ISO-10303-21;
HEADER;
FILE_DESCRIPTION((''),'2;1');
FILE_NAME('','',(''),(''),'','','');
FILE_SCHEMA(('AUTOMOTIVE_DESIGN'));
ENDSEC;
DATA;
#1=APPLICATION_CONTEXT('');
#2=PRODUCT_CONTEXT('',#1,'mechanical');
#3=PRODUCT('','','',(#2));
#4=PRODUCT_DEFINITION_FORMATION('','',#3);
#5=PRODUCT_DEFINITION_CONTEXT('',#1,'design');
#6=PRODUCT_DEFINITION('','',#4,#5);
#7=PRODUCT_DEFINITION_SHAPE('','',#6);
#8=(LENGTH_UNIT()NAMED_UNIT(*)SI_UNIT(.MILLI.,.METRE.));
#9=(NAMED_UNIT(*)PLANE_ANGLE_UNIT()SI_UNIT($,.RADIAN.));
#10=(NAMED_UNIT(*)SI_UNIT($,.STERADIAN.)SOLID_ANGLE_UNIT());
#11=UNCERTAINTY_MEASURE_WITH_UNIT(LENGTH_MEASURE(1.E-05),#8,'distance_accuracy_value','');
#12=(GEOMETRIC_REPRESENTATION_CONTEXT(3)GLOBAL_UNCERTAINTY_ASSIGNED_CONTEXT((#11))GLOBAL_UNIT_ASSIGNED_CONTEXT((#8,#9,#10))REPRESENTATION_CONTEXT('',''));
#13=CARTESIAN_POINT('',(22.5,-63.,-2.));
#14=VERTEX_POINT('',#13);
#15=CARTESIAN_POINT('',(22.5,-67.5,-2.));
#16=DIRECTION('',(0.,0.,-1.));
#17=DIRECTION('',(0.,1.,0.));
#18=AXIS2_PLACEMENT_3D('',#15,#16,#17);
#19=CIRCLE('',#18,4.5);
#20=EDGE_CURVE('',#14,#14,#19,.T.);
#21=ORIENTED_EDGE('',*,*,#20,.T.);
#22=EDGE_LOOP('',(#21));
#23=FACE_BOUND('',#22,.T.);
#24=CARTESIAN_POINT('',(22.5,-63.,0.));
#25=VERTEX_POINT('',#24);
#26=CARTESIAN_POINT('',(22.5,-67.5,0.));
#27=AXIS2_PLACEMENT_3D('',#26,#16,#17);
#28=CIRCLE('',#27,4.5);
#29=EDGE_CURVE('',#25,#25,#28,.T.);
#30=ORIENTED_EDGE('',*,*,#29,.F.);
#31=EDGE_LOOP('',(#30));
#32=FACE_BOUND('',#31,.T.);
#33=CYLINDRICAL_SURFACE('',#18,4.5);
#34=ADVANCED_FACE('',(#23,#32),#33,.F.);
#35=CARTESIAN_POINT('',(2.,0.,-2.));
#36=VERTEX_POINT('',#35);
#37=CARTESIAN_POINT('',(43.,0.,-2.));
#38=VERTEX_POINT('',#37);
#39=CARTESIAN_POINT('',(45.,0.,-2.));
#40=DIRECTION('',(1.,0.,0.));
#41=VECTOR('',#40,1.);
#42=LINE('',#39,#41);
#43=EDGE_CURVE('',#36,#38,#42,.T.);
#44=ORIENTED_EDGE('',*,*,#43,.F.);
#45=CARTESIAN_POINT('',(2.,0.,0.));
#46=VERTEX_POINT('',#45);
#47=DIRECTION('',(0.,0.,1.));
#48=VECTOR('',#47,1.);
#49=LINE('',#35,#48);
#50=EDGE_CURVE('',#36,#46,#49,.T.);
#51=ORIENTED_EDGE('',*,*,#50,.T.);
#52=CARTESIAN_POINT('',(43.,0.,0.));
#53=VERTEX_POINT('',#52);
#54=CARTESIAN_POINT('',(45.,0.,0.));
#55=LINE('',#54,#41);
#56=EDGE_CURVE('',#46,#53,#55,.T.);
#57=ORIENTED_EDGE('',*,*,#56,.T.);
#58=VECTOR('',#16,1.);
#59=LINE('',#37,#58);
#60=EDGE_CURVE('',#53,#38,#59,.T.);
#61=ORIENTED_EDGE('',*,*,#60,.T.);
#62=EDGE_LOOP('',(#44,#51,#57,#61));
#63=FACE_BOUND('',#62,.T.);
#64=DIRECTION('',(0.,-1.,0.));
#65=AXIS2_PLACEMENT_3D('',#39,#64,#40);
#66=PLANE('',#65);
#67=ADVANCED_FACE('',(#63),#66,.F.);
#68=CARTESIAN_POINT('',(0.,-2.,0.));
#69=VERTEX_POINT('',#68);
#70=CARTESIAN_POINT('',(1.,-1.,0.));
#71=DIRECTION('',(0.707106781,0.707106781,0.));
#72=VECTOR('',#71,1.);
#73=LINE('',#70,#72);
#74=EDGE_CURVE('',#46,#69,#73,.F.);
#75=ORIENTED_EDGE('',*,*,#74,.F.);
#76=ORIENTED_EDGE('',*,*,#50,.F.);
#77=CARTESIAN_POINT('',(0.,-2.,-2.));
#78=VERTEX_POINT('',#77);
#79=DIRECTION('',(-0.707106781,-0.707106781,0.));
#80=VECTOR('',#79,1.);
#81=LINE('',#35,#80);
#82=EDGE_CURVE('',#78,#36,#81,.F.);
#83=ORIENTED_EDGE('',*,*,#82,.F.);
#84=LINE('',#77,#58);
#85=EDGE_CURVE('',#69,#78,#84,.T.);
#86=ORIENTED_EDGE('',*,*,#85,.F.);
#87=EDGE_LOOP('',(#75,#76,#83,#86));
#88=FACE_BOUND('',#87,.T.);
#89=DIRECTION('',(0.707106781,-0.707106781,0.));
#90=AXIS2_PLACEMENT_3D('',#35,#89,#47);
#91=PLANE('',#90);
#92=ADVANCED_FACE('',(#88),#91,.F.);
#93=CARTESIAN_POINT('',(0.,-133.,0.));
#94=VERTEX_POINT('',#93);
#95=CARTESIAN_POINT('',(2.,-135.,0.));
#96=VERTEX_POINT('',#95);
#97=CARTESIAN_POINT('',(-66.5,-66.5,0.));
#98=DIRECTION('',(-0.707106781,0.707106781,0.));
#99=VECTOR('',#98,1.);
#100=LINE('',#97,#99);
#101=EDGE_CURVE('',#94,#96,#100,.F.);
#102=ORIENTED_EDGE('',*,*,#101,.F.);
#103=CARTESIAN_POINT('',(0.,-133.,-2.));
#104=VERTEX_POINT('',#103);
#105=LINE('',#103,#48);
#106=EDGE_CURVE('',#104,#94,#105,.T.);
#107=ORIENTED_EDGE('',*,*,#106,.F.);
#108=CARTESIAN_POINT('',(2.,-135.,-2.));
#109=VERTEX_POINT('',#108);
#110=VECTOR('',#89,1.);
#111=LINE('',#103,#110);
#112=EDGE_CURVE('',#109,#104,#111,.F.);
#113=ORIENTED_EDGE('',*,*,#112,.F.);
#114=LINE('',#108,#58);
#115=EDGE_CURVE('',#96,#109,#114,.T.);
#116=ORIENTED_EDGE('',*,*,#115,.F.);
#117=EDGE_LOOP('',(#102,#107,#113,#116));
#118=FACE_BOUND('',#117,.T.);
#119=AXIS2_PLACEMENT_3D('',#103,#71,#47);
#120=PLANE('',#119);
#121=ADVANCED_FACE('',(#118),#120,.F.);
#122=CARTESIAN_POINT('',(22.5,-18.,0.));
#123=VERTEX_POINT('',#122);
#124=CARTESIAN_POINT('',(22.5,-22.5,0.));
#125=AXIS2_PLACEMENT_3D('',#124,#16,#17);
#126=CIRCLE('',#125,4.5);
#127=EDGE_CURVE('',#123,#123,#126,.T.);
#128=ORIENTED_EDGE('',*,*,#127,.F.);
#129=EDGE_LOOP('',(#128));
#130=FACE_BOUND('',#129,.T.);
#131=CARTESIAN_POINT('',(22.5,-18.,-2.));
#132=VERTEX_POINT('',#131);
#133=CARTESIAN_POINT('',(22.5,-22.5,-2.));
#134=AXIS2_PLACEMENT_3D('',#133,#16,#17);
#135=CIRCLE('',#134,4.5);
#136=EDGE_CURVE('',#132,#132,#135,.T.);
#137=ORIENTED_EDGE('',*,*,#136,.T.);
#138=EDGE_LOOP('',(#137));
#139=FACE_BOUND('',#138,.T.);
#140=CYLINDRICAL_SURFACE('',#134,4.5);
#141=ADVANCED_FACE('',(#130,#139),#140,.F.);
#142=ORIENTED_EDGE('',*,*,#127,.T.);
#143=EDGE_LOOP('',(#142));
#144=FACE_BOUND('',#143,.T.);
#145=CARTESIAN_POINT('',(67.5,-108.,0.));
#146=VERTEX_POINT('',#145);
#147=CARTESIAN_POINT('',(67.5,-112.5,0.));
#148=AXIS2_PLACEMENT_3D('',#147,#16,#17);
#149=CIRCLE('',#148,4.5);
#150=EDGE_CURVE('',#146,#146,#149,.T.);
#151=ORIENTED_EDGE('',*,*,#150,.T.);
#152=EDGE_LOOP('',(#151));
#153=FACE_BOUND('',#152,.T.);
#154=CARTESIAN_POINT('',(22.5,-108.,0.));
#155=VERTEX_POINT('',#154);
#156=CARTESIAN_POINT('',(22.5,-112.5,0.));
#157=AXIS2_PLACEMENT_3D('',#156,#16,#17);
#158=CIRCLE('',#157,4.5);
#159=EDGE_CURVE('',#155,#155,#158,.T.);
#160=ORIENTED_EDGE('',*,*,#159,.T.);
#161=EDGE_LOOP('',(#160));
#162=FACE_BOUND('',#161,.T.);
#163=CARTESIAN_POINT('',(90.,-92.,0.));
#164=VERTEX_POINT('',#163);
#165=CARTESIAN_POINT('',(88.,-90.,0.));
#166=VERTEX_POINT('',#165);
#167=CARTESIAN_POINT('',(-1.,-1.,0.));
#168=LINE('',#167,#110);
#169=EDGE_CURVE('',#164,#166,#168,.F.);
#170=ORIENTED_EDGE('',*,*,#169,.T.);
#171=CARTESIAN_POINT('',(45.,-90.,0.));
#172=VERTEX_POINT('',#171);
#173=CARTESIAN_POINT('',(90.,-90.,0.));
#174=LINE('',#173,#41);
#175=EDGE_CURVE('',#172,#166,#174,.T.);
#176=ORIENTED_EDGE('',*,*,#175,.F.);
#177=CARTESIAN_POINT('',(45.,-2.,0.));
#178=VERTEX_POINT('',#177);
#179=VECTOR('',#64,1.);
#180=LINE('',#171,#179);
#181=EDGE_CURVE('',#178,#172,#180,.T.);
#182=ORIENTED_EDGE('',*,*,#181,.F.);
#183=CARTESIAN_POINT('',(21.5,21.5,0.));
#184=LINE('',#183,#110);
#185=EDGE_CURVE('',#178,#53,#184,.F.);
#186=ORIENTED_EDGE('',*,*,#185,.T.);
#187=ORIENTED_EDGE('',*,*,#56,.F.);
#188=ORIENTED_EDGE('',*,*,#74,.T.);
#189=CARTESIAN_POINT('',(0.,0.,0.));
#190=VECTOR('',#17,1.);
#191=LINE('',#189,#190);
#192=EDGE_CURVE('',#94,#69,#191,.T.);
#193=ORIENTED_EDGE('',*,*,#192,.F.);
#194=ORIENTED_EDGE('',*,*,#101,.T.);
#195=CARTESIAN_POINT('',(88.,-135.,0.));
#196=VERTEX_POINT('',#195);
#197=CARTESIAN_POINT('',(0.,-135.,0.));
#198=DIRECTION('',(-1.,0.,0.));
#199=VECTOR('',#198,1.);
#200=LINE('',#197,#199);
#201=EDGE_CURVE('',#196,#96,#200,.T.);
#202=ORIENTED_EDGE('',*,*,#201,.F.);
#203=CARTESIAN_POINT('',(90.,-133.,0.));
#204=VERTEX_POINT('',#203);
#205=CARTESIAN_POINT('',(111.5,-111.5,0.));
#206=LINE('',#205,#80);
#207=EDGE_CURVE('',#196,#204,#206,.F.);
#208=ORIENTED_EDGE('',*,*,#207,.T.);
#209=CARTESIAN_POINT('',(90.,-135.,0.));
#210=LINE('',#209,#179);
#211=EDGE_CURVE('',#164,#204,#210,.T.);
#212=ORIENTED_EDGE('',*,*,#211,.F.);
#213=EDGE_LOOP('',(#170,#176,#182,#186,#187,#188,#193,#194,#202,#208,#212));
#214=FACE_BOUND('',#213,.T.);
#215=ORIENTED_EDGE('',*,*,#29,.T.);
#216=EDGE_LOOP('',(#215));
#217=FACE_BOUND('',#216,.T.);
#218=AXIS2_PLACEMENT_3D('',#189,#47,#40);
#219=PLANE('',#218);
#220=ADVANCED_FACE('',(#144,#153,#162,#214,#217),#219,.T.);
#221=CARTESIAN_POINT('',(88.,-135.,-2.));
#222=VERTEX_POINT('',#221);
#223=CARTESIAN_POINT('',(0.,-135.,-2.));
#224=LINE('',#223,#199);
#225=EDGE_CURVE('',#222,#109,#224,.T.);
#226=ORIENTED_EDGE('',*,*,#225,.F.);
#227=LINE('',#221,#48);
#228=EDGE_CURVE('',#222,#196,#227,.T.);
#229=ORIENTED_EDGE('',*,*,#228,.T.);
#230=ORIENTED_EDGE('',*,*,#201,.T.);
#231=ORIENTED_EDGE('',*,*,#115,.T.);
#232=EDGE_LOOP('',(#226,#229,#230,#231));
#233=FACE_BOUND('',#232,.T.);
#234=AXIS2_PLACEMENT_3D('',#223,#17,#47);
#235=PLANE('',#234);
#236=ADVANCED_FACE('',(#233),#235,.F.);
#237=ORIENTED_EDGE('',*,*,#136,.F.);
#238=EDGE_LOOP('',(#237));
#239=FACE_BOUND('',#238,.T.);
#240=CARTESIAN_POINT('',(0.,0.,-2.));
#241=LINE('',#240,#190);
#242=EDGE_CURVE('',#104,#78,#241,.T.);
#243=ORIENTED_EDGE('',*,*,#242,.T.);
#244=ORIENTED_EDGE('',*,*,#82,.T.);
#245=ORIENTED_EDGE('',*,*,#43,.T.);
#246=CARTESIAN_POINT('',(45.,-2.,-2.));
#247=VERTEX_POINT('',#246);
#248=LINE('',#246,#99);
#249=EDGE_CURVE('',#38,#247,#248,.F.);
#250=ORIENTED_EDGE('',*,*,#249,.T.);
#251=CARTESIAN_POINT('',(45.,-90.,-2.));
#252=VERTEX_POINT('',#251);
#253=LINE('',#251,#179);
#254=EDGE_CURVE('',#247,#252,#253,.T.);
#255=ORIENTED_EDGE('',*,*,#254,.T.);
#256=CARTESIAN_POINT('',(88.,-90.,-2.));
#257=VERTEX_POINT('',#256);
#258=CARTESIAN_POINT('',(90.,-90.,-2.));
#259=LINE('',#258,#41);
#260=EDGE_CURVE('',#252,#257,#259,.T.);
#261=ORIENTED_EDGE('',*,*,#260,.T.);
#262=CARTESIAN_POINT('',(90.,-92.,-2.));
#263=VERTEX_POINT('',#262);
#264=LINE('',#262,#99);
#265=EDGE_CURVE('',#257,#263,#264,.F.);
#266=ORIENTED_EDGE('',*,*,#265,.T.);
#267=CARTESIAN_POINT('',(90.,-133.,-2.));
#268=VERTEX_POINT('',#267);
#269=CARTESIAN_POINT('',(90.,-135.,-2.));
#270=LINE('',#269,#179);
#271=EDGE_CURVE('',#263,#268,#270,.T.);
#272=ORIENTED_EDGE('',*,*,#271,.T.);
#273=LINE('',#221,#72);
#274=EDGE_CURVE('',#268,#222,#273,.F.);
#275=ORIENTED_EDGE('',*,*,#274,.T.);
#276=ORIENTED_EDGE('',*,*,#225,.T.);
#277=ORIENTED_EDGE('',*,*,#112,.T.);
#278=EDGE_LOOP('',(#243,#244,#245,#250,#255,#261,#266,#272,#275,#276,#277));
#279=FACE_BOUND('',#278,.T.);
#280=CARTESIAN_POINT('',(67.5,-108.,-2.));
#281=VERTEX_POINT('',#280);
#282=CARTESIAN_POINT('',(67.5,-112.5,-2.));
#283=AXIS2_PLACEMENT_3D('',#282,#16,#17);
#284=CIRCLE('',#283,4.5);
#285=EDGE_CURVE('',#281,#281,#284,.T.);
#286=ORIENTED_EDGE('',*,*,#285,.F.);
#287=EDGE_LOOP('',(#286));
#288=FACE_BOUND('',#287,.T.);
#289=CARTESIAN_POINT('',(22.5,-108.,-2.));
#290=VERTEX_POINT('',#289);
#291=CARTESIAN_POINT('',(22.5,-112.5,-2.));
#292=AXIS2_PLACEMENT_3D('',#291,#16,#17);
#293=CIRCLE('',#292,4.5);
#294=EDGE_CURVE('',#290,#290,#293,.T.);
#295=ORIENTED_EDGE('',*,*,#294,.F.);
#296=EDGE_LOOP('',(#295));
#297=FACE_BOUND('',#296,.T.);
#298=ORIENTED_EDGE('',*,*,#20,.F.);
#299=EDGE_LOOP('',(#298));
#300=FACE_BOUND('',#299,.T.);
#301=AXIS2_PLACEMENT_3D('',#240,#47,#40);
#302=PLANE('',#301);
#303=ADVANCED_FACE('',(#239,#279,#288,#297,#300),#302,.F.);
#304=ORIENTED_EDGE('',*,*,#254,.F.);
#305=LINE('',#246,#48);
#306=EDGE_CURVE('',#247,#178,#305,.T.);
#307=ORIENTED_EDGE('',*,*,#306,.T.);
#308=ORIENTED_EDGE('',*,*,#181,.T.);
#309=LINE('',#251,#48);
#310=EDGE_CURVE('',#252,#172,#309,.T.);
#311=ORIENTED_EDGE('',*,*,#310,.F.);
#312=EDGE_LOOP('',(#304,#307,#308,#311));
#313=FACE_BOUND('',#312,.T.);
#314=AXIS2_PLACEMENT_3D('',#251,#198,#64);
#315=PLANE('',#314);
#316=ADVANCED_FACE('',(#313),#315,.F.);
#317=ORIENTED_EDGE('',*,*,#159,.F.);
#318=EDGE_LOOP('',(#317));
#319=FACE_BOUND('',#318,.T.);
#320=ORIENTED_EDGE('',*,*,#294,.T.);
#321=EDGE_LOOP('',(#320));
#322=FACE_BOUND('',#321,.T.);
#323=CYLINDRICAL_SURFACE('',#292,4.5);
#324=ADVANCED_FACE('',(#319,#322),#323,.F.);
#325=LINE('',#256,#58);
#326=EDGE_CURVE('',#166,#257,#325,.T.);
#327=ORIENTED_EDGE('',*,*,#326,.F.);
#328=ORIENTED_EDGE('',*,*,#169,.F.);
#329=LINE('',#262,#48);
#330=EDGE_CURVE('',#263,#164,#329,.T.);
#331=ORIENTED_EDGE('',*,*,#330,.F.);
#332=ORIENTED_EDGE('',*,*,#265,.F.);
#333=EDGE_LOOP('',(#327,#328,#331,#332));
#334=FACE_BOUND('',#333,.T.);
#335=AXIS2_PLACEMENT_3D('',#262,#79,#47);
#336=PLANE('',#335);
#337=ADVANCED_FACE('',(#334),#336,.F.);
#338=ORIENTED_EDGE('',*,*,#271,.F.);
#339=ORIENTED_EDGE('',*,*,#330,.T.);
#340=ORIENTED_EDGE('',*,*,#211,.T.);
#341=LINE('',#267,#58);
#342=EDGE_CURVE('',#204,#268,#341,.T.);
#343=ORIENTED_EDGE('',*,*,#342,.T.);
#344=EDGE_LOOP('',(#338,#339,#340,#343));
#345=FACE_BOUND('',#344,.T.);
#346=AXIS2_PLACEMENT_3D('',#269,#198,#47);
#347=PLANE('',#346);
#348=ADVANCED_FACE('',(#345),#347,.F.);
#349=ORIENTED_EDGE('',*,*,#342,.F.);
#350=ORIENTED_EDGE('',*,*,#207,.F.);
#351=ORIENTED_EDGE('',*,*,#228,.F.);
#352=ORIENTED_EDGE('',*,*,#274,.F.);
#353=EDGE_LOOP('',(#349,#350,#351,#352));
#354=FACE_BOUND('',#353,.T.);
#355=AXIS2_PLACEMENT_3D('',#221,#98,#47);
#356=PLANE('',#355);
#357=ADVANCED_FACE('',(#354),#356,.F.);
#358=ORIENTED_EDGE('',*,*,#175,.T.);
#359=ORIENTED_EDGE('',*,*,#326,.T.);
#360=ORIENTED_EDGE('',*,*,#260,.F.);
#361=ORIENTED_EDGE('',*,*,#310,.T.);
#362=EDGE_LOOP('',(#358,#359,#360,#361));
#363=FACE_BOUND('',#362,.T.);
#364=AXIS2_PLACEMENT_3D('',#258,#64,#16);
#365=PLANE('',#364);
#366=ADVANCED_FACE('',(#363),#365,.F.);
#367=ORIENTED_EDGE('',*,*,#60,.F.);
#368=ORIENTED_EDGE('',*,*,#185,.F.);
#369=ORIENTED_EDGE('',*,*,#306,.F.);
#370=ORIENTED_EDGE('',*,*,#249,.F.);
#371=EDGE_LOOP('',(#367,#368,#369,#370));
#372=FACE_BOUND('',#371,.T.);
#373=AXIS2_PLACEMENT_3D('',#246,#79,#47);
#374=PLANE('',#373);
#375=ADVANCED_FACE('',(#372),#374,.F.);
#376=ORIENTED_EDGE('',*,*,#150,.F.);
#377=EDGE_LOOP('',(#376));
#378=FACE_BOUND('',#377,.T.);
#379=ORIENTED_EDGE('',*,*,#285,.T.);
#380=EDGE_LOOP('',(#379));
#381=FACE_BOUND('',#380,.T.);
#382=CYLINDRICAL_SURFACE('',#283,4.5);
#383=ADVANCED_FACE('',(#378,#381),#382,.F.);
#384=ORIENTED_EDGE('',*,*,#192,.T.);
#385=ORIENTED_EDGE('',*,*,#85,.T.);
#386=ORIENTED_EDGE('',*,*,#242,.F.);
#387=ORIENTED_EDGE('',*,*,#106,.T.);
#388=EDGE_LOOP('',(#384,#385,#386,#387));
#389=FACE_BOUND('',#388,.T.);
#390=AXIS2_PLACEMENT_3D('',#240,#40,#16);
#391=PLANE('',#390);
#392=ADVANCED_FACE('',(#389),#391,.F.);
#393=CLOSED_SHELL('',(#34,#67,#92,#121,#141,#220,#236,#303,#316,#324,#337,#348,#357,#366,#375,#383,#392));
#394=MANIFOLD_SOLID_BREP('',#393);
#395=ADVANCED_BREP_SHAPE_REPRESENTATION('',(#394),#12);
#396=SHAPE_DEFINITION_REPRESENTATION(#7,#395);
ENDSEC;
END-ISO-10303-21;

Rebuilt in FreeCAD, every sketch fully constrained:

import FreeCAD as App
import Part
import Sketcher


def edges_at(feature, points):
    """Names of the edges that pass closest to the given points."""
    edges = feature.Shape.Edges
    near = lambda p: min(range(len(edges)), key=lambda i: edges[i].distToShape(Part.Vertex(*p))[0])
    return sorted({f"Edge{near(p) + 1}" for p in points})

doc = App.newDocument("Part")
body = doc.addObject("PartDesign::Body", "Body")

# Sketch on XY plane
sketch1 = doc.addObject("Sketcher::SketchObject", "Sketch")
body.addObject(sketch1)
sketch1.AttachmentSupport = (doc.XY_Plane, [""])
sketch1.MapMode = "FlatFace"
sketch1.addGeometry(Part.LineSegment(App.Vector(0, -135, 0), App.Vector(0, 0, 0)), False)
sketch1.addGeometry(Part.LineSegment(App.Vector(0, 0, 0), App.Vector(45, 0, 0)), False)
sketch1.addGeometry(Part.LineSegment(App.Vector(45, 0, 0), App.Vector(45, -90, 0)), False)
sketch1.addGeometry(Part.LineSegment(App.Vector(45, -90, 0), App.Vector(90, -90, 0)), False)
sketch1.addGeometry(Part.LineSegment(App.Vector(90, -90, 0), App.Vector(90, -135, 0)), False)
sketch1.addGeometry(Part.LineSegment(App.Vector(90, -135, 0), App.Vector(0, -135, 0)), False)
sketch1.addConstraint(Sketcher.Constraint("Coincident", 0, 2, 1, 1))
sketch1.addConstraint(Sketcher.Constraint("Coincident", 1, 2, 2, 1))
sketch1.addConstraint(Sketcher.Constraint("Coincident", 2, 2, 3, 1))
sketch1.addConstraint(Sketcher.Constraint("Coincident", 3, 2, 4, 1))
sketch1.addConstraint(Sketcher.Constraint("Coincident", 4, 2, 5, 1))
sketch1.addConstraint(Sketcher.Constraint("Coincident", 5, 2, 0, 1))
sketch1.addConstraint(Sketcher.Constraint("Vertical", 0))
sketch1.addConstraint(Sketcher.Constraint("Horizontal", 1))
sketch1.addConstraint(Sketcher.Constraint("Vertical", 2))
sketch1.addConstraint(Sketcher.Constraint("Horizontal", 3))
sketch1.addConstraint(Sketcher.Constraint("Vertical", 4))
sketch1.addConstraint(Sketcher.Constraint("Horizontal", 5))
sketch1.addConstraint(Sketcher.Constraint("Coincident", 0, 2, -1, 1))
sketch1.addConstraint(Sketcher.Constraint("Equal", 1, 3))
sketch1.addConstraint(Sketcher.Constraint("Equal", 5, 2))
sketch1.addConstraint(Sketcher.Constraint("Equal", 3, 4))
sketch1.addConstraint(Sketcher.Constraint("DistanceX", 1, 1, 1, 2, 45.0))
pad1 = doc.addObject("PartDesign::Pad", "Pad")
body.addObject(pad1)
pad1.Profile = sketch1
pad1.Length = 2
pad1.Reversed = True

# Sketch on XY plane
sketch2 = doc.addObject("Sketcher::SketchObject", "Sketch001")
body.addObject(sketch2)
sketch2.AttachmentSupport = (doc.XY_Plane, [""])
sketch2.MapMode = "FlatFace"
sketch2.AttachmentOffset = App.Placement(App.Vector(0, 0, -2), App.Rotation())
sketch2.addGeometry(Part.Circle(App.Vector(67.5, -112.5, 0), App.Vector(0, 0, 1), 4.5), False)
sketch2.addGeometry(Part.Circle(App.Vector(22.5, -112.5, 0), App.Vector(0, 0, 1), 4.5), False)
sketch2.addGeometry(Part.Circle(App.Vector(22.5, -67.5, 0), App.Vector(0, 0, 1), 4.5), False)
sketch2.addGeometry(Part.Circle(App.Vector(22.5, -22.5, 0), App.Vector(0, 0, 1), 4.5), False)
sketch2.addConstraint(Sketcher.Constraint("Equal", 0, 1))
sketch2.addConstraint(Sketcher.Constraint("Equal", 1, 2))
sketch2.addConstraint(Sketcher.Constraint("Equal", 2, 3))
sketch2.addConstraint(Sketcher.Constraint("Horizontal", 0, 3, 1, 3))
sketch2.addConstraint(Sketcher.Constraint("Vertical", 1, 3, 2, 3))
sketch2.addConstraint(Sketcher.Constraint("Vertical", 2, 3, 3, 3))
sketch2.addConstraint(Sketcher.Constraint("Diameter", 0, 9.0))
sketch2.addConstraint(Sketcher.Constraint("DistanceX", 1, 3, 0, 3, 45.0))
sketch2.addConstraint(Sketcher.Constraint("DistanceY", 1, 3, 2, 3, 45.0))
sketch2.addConstraint(Sketcher.Constraint("DistanceY", 2, 3, 3, 3, 45.0))
sketch2.addConstraint(Sketcher.Constraint("DistanceX", -1, 1, 0, 3, 67.5))
sketch2.addConstraint(Sketcher.Constraint("DistanceY", 0, 3, -1, 1, 112.5))
doc.recompute()
hole = doc.addObject("PartDesign::Hole", "Hole")
body.addObject(hole)
hole.Profile = sketch2
hole.ThreadType = "None"
hole.Diameter = 9
hole.DepthType = "ThroughAll"
hole.Reversed = True
doc.recompute()

chamfer = doc.addObject("PartDesign::Chamfer", "Chamfer")
body.addObject(chamfer)
chamfer.Base = (hole, edges_at(hole, [
    (0, 0, -1),
    (0, -135, -1),
    (90, -135, -1),
    (90, -90, -1),
    (45, 0, -1),
]))
chamfer.Size = 2

doc.recompute()
